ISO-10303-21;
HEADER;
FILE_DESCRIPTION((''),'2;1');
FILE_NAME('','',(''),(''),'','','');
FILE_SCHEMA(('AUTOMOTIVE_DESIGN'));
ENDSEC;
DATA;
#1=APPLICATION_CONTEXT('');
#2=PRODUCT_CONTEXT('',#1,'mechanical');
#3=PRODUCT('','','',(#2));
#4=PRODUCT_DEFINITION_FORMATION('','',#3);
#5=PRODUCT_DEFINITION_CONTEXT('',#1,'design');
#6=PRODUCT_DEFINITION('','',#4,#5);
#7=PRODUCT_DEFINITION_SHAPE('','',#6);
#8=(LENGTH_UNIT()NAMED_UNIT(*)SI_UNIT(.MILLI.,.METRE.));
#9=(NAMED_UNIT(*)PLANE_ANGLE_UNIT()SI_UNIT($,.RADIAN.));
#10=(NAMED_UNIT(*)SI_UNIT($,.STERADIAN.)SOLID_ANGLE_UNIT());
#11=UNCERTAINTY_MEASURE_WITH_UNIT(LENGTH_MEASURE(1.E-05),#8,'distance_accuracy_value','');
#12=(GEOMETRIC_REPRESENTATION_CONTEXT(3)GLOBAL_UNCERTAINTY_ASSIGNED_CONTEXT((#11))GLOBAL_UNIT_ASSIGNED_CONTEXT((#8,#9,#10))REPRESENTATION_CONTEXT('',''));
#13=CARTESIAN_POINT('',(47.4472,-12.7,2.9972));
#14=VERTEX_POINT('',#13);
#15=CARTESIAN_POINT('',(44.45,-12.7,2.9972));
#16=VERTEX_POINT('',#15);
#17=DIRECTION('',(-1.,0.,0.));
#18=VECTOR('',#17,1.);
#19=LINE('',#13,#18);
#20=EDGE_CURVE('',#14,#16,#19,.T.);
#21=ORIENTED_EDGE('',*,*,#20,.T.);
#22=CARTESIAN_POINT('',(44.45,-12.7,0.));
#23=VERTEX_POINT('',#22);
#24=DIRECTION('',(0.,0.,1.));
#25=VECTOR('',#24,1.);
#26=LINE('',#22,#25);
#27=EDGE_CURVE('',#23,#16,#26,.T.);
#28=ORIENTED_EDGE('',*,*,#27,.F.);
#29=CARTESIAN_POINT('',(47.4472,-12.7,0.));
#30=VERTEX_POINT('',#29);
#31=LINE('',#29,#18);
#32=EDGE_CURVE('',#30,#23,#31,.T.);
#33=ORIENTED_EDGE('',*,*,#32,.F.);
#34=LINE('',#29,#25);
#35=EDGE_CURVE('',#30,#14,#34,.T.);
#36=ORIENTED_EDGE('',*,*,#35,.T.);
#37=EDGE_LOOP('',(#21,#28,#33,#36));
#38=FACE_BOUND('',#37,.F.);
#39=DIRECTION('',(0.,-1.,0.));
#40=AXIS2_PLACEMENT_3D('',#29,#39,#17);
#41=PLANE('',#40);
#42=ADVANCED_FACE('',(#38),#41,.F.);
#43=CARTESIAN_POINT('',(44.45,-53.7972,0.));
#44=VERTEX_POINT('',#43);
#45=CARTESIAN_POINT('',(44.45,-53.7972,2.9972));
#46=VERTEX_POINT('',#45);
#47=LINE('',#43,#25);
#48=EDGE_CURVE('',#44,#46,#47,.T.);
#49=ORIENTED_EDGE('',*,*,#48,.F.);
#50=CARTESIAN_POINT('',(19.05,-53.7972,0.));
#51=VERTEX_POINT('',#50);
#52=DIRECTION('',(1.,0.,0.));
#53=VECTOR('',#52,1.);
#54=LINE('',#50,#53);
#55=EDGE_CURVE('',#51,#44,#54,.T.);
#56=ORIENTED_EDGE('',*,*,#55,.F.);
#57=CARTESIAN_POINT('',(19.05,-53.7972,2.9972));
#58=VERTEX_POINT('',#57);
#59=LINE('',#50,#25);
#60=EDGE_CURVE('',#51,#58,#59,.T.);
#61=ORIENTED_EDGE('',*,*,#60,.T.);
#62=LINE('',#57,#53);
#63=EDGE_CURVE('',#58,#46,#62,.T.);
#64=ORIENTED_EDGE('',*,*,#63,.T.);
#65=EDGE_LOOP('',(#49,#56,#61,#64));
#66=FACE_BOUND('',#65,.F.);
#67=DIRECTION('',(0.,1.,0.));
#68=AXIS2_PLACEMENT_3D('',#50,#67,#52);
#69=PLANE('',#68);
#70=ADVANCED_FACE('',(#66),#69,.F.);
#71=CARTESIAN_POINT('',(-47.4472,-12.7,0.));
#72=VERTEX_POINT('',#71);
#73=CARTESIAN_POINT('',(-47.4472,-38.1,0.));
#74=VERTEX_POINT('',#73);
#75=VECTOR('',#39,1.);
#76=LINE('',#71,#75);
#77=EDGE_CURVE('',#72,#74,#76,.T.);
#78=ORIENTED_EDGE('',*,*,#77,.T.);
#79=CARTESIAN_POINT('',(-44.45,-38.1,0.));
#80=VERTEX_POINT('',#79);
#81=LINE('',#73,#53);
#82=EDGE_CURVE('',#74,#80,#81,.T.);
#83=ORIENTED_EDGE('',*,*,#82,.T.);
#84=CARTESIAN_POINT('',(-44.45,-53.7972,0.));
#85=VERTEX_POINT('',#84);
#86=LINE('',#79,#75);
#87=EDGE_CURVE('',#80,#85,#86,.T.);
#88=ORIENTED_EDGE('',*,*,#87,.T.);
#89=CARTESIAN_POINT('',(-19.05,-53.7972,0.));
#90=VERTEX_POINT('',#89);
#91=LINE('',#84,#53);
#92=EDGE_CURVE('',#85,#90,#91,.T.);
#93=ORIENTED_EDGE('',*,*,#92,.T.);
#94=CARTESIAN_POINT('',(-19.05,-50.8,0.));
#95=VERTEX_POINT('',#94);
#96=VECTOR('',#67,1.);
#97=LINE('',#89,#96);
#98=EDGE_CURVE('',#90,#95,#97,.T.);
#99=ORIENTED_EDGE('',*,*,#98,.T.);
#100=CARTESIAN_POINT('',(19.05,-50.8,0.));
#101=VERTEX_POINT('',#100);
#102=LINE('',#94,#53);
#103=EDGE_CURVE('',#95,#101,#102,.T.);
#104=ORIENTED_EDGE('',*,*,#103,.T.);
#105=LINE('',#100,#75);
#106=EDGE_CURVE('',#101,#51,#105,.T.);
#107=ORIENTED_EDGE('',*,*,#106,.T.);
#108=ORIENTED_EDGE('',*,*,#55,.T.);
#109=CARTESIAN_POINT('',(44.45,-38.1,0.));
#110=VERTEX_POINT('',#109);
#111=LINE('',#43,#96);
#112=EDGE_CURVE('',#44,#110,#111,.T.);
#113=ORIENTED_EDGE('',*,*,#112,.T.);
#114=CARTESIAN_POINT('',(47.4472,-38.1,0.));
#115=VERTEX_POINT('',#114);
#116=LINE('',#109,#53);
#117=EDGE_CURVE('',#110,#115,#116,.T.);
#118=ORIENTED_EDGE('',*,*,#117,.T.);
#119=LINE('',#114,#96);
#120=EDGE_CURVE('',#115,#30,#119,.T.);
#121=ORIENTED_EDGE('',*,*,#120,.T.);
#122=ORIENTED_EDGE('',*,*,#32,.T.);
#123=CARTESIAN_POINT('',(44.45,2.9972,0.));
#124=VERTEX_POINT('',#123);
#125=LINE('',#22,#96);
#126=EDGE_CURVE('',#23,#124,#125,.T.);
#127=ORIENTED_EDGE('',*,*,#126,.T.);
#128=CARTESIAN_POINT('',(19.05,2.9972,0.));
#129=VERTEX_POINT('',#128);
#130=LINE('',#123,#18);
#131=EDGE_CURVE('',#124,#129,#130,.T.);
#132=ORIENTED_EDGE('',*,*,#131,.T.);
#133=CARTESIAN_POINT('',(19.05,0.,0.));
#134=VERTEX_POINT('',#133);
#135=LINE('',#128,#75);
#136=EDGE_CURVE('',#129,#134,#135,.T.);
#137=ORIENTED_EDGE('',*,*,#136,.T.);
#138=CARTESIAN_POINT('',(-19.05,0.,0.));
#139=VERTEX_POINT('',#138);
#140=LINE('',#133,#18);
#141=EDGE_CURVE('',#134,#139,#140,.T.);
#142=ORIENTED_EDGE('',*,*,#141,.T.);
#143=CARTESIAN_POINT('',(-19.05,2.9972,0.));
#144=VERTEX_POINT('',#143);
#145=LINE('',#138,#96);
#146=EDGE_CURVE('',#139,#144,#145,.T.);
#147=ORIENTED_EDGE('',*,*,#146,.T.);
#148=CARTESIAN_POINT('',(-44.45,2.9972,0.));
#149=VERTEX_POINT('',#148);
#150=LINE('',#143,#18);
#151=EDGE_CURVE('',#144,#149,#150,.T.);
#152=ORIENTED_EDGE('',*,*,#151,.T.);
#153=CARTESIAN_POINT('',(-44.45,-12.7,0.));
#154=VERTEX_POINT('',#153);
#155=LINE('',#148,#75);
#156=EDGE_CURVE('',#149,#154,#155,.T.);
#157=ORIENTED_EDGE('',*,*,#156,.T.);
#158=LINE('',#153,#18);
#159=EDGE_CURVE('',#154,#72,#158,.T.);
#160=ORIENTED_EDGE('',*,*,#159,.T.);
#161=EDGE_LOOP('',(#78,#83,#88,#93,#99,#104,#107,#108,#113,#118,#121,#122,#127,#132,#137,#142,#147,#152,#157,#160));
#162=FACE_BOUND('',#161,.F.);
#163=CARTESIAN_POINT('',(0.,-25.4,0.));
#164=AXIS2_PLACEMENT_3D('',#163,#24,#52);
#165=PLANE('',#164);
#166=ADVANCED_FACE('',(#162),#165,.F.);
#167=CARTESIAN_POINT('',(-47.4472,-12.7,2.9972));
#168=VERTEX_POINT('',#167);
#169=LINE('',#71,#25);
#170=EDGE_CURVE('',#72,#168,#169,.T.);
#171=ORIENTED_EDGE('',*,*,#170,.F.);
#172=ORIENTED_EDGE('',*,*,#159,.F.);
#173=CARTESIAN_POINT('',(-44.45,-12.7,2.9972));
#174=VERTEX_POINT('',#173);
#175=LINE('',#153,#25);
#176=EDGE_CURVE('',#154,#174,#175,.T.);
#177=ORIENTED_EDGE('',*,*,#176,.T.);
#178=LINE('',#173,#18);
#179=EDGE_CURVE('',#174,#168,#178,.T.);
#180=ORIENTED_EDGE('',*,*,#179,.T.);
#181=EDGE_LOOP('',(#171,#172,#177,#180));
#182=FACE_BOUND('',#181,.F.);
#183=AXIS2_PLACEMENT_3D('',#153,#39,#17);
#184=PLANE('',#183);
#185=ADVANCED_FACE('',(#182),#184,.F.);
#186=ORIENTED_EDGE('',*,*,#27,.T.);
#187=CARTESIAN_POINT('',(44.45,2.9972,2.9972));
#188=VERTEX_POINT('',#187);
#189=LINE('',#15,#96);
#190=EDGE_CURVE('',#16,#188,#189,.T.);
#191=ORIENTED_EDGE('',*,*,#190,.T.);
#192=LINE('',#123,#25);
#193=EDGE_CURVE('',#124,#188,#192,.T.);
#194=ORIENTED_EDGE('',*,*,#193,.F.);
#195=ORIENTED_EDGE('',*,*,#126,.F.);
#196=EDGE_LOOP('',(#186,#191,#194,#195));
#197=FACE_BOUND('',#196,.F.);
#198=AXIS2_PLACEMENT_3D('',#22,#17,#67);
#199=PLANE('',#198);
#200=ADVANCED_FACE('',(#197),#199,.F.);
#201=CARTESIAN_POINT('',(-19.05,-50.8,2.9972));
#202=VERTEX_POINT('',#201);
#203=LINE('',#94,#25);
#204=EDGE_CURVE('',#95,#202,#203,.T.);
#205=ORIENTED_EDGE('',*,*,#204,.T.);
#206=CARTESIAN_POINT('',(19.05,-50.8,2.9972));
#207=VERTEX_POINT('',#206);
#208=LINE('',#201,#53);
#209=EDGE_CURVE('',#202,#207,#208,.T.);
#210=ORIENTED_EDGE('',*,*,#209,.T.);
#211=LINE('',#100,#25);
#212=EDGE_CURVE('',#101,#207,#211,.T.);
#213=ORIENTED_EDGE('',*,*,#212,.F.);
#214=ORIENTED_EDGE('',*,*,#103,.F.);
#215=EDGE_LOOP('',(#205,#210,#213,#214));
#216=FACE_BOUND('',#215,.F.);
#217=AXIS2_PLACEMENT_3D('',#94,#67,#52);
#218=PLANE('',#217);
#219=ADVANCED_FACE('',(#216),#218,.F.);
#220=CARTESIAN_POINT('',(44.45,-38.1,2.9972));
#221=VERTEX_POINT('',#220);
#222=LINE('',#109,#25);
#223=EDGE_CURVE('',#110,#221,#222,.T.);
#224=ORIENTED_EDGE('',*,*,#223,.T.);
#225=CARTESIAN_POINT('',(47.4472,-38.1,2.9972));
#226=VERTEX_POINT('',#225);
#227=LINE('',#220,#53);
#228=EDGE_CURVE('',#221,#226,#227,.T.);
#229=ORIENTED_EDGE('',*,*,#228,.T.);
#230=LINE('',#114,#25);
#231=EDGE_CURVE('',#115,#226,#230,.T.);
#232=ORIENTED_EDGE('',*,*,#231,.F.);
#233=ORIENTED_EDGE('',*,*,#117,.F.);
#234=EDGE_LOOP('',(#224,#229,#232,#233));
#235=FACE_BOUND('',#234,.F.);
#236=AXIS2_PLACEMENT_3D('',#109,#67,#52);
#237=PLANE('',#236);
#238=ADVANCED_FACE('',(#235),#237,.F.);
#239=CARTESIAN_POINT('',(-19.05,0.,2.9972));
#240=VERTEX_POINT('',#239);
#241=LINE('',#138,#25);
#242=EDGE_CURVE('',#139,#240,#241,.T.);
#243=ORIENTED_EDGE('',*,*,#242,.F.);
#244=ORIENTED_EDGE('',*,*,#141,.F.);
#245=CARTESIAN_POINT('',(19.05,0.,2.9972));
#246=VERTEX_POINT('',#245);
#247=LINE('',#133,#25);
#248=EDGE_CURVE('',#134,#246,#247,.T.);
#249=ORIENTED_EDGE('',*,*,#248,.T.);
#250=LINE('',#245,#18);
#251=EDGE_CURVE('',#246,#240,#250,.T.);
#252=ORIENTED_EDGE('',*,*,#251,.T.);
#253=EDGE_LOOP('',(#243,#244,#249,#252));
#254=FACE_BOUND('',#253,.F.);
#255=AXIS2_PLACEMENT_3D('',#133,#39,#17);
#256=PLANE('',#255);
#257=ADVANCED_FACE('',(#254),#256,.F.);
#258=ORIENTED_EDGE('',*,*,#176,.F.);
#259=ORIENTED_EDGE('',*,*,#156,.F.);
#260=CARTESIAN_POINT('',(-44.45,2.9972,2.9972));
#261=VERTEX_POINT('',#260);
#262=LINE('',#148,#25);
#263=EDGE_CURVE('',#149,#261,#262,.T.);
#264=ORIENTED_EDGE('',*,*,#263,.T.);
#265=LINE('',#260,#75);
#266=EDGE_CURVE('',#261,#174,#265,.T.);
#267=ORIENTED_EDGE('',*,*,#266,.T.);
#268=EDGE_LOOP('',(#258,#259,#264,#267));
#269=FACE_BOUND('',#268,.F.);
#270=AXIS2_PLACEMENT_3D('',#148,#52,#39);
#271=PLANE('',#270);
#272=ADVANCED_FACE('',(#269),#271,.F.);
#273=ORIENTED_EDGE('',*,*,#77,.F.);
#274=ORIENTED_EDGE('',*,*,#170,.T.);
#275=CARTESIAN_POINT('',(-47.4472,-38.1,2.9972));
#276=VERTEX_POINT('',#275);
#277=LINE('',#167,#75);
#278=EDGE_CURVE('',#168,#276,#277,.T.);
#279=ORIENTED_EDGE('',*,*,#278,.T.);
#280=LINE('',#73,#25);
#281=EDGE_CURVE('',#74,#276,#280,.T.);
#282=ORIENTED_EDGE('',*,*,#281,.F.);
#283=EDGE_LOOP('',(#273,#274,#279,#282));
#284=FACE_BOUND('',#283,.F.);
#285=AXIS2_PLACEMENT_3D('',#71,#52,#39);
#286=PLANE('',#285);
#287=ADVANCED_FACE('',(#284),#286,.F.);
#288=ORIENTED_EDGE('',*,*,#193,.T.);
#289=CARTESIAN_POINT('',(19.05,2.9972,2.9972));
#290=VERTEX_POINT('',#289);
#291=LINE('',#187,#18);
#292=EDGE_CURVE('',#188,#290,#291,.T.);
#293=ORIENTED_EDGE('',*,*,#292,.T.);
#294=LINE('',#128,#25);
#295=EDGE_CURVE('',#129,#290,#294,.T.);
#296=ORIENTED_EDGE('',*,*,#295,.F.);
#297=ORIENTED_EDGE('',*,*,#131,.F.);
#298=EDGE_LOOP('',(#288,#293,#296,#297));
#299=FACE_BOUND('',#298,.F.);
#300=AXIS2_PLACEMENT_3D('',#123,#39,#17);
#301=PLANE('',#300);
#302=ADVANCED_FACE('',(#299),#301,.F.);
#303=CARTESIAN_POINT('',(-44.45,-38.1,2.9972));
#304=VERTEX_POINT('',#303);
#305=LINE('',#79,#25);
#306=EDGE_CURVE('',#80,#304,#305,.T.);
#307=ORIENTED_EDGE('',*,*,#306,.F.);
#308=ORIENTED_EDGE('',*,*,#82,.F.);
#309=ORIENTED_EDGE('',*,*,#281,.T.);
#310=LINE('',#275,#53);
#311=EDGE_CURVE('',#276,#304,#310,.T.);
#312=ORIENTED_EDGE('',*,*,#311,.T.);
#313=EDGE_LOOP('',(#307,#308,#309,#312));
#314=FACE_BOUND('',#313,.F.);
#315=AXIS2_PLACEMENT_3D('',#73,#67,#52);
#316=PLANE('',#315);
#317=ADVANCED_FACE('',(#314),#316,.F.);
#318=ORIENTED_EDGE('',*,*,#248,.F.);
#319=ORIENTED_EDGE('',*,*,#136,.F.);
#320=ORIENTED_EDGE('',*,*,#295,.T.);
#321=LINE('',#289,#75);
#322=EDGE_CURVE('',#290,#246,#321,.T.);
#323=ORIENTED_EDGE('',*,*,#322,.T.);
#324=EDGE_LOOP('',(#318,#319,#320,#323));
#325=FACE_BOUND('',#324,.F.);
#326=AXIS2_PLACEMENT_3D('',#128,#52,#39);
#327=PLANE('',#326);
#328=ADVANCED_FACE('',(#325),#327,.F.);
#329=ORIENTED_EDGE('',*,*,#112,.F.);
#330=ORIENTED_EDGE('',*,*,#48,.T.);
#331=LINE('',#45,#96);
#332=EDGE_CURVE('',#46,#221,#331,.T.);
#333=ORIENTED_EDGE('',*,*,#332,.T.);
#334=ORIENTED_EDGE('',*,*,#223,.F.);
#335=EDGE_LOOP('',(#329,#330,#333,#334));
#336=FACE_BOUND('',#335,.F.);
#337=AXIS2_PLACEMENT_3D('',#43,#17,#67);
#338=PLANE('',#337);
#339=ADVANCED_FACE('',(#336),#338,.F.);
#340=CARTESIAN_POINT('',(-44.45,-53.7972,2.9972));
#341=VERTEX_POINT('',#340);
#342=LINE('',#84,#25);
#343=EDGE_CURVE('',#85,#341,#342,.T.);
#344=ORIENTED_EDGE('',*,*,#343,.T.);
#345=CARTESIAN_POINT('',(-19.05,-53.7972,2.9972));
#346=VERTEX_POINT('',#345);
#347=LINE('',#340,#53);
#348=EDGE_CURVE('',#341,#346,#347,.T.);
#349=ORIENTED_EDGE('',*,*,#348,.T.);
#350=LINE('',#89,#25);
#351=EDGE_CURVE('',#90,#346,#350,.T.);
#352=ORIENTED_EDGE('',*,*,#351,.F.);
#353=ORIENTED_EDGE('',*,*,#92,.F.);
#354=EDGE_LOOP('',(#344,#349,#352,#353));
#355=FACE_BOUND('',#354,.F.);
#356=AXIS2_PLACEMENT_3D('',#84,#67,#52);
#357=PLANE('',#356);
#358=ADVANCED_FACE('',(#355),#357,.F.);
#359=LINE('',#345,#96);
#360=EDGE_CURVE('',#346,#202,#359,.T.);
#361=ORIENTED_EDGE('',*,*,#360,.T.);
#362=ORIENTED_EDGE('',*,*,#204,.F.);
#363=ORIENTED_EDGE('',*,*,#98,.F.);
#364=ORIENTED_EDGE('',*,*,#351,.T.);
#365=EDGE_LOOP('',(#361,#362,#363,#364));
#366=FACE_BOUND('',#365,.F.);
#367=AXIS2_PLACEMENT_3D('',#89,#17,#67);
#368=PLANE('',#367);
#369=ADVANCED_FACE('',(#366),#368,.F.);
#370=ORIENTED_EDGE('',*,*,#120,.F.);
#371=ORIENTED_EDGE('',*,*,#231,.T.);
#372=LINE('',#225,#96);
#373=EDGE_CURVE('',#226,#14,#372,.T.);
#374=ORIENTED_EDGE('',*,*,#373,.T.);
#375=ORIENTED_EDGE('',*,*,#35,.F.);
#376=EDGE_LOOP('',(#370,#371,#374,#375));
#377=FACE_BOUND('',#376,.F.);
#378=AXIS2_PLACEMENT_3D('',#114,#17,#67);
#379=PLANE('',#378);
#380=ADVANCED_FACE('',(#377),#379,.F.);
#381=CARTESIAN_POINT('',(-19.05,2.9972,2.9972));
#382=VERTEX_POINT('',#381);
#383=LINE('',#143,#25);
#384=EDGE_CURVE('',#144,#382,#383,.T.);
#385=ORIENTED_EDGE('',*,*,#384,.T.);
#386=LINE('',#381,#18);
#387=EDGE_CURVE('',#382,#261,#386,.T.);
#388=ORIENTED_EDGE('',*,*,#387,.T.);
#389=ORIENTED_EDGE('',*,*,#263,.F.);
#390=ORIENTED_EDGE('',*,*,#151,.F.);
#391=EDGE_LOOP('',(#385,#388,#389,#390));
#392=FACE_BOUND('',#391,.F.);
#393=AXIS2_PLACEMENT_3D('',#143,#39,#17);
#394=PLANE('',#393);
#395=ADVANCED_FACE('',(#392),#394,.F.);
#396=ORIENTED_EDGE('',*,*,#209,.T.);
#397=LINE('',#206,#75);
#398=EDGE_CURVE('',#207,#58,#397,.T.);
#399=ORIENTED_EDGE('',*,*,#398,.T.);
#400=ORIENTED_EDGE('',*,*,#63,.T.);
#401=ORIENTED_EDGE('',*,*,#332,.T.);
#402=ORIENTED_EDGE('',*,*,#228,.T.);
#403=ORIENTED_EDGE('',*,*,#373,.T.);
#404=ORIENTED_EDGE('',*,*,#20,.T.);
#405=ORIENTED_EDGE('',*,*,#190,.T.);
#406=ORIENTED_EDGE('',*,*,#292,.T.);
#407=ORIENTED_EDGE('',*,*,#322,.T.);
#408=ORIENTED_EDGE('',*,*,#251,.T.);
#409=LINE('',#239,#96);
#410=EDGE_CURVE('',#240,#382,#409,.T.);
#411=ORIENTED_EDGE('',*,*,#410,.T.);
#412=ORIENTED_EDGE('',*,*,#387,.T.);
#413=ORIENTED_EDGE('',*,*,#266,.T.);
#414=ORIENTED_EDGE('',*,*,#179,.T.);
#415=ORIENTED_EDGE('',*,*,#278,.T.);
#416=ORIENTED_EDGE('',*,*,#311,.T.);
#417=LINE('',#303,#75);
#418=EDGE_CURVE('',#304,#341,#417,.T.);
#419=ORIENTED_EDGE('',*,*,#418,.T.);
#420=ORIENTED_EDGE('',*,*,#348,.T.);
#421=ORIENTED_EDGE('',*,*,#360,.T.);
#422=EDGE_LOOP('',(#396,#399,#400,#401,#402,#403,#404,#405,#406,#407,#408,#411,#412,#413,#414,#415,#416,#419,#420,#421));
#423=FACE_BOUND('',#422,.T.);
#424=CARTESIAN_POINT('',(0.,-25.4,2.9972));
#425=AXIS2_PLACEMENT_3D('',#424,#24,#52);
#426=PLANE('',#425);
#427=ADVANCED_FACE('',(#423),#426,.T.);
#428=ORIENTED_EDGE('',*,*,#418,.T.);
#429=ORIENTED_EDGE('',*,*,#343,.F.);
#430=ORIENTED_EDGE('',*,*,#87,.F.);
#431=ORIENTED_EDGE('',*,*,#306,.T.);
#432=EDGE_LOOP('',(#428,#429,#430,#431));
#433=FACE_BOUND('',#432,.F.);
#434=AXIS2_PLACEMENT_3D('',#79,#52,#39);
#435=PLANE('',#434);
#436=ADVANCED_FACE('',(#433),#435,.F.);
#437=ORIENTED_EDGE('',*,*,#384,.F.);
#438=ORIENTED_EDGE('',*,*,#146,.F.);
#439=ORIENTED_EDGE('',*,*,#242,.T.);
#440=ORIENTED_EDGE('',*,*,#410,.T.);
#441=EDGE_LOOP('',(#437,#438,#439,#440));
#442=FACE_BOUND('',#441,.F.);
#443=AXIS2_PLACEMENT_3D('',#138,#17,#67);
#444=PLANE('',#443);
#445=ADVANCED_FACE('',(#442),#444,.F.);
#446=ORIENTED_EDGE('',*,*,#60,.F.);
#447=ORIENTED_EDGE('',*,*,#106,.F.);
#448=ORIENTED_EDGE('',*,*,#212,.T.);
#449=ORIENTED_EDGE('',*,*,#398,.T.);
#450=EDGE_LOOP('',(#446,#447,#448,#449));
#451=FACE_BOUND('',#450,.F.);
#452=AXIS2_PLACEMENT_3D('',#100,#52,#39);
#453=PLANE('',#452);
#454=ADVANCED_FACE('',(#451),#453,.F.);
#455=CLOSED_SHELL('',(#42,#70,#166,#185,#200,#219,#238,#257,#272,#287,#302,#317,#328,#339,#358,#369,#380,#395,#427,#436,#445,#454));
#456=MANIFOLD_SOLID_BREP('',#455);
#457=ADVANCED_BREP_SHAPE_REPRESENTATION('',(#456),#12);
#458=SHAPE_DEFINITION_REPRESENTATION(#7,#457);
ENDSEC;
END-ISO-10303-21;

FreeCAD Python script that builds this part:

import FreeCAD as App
import Part
import Sketcher

V = App.Vector
Q = App.Units.Quantity


def add_polygon(sketch, points):
    """Adds a closed chain of lines whose ends are joined by coincident constraints."""
    first, n = sketch.GeometryCount, len(points)
    for a, b in zip(points, points[1:] + points[:1]):
        sketch.addGeometry(Part.LineSegment(App.Vector(*a, 0), App.Vector(*b, 0)), False)
    for i in range(n):
        sketch.addConstraint(Sketcher.Constraint("Coincident", first + i, 2, first + (i + 1) % n, 1))

doc = App.newDocument("Part")
params = doc.addObject("Spreadsheet::Sheet", "Params")
for row, (alias, value) in enumerate([
    ("sketch1_width", "1 in"),
    ("sketch1_width2", "1.5 in"),
    ("sketch1_width3", "0.118 in"),
    ("pad1_length", "0.118 in"),
], start=1):
    params.set(f"A{row}", alias)
    params.set(f"B{row}", "=" + value)
    params.setAlias(f"B{row}", alias)

body = doc.addObject("PartDesign::Body", "Body")

sketch1 = doc.addObject("Sketcher::SketchObject", "Sketch")
body.addObject(sketch1)
sketch1.AttachmentSupport = (doc.XY_Plane, [""])
sketch1.MapMode = "FlatFace"
add_polygon(sketch1, [(19.1, 0), (-19.1, 0), (-19.1, 3), (-44.5, 3), (-44.5, -12.7), (-47.4, -12.7), (-47.4, -38.1), (-44.5, -38.1), (-44.5, -53.8), (-19.1, -53.8), (-19.1, -50.8), (19.1, -50.8), (19.1, -53.8), (44.5, -53.8), (44.5, -38.1), (47.4, -38.1), (47.4, -12.7), (44.5, -12.7), (44.5, 3), (19.1, 3)])
sketch1.addConstraint([
    Sketcher.Constraint("Horizontal", 0),
    Sketcher.Constraint("Vertical", 1),
    Sketcher.Constraint("Horizontal", 2),
    Sketcher.Constraint("Vertical", 3),
    Sketcher.Constraint("Horizontal", 4),
    Sketcher.Constraint("Vertical", 5),
    Sketcher.Constraint("Horizontal", 6),
    Sketcher.Constraint("Vertical", 7),
    Sketcher.Constraint("Horizontal", 8),
    Sketcher.Constraint("Vertical", 9),
    Sketcher.Constraint("Horizontal", 10),
    Sketcher.Constraint("Vertical", 11),
    Sketcher.Constraint("Horizontal", 12),
    Sketcher.Constraint("Vertical", 13),
    Sketcher.Constraint("Horizontal", 14),
    Sketcher.Constraint("Vertical", 15),
    Sketcher.Constraint("Horizontal", 16),
    Sketcher.Constraint("Vertical", 17),
    Sketcher.Constraint("Horizontal", 18),
    Sketcher.Constraint("Vertical", 19),
    Sketcher.Constraint("Symmetric", 0, 2, 19, 2, -1, 1),
    Sketcher.Constraint("Symmetric", 8, 2, 11, 2, -2),
    Sketcher.Constraint("Symmetric", 6, 2, 13, 2, -2),
    Sketcher.Constraint("Symmetric", 4, 2, 15, 2, -2),
    Sketcher.Constraint("Symmetric", 2, 2, 17, 2, -2),
    Sketcher.Constraint("Vertical", 3, 2, 6, 2),
    Sketcher.Constraint("Vertical", 1, 2, 8, 2),
    Sketcher.Constraint("Equal", 16, 1),
    Sketcher.Constraint("Equal", 18, 5),
    Sketcher.Constraint("Equal", 3, 7),
    Sketcher.Constraint("Equal", 1, 9),
    Sketcher.Constraint("DistanceX", 2, 2, 2, 1, Q("1 in")),
    Sketcher.Constraint("DistanceX", 0, 2, 0, 1, Q("1.5 in")),
    Sketcher.Constraint("DistanceY", 9, 2, -1, 1, Q("2 in")),
    Sketcher.Constraint("DistanceX", 4, 2, 4, 1, Q("0.118 in")),
])
sketch1.setExpression("Constraints[51]", "Params.sketch1_width")
sketch1.setExpression("Constraints[52]", "Params.sketch1_width2")
sketch1.setExpression("Constraints[54]", "Params.sketch1_width3")
pad1 = doc.addObject("PartDesign::Pad", "Pad")
body.addObject(pad1)
pad1.Profile = sketch1
pad1.setExpression("Length", "Params.pad1_length")

doc.recompute()
